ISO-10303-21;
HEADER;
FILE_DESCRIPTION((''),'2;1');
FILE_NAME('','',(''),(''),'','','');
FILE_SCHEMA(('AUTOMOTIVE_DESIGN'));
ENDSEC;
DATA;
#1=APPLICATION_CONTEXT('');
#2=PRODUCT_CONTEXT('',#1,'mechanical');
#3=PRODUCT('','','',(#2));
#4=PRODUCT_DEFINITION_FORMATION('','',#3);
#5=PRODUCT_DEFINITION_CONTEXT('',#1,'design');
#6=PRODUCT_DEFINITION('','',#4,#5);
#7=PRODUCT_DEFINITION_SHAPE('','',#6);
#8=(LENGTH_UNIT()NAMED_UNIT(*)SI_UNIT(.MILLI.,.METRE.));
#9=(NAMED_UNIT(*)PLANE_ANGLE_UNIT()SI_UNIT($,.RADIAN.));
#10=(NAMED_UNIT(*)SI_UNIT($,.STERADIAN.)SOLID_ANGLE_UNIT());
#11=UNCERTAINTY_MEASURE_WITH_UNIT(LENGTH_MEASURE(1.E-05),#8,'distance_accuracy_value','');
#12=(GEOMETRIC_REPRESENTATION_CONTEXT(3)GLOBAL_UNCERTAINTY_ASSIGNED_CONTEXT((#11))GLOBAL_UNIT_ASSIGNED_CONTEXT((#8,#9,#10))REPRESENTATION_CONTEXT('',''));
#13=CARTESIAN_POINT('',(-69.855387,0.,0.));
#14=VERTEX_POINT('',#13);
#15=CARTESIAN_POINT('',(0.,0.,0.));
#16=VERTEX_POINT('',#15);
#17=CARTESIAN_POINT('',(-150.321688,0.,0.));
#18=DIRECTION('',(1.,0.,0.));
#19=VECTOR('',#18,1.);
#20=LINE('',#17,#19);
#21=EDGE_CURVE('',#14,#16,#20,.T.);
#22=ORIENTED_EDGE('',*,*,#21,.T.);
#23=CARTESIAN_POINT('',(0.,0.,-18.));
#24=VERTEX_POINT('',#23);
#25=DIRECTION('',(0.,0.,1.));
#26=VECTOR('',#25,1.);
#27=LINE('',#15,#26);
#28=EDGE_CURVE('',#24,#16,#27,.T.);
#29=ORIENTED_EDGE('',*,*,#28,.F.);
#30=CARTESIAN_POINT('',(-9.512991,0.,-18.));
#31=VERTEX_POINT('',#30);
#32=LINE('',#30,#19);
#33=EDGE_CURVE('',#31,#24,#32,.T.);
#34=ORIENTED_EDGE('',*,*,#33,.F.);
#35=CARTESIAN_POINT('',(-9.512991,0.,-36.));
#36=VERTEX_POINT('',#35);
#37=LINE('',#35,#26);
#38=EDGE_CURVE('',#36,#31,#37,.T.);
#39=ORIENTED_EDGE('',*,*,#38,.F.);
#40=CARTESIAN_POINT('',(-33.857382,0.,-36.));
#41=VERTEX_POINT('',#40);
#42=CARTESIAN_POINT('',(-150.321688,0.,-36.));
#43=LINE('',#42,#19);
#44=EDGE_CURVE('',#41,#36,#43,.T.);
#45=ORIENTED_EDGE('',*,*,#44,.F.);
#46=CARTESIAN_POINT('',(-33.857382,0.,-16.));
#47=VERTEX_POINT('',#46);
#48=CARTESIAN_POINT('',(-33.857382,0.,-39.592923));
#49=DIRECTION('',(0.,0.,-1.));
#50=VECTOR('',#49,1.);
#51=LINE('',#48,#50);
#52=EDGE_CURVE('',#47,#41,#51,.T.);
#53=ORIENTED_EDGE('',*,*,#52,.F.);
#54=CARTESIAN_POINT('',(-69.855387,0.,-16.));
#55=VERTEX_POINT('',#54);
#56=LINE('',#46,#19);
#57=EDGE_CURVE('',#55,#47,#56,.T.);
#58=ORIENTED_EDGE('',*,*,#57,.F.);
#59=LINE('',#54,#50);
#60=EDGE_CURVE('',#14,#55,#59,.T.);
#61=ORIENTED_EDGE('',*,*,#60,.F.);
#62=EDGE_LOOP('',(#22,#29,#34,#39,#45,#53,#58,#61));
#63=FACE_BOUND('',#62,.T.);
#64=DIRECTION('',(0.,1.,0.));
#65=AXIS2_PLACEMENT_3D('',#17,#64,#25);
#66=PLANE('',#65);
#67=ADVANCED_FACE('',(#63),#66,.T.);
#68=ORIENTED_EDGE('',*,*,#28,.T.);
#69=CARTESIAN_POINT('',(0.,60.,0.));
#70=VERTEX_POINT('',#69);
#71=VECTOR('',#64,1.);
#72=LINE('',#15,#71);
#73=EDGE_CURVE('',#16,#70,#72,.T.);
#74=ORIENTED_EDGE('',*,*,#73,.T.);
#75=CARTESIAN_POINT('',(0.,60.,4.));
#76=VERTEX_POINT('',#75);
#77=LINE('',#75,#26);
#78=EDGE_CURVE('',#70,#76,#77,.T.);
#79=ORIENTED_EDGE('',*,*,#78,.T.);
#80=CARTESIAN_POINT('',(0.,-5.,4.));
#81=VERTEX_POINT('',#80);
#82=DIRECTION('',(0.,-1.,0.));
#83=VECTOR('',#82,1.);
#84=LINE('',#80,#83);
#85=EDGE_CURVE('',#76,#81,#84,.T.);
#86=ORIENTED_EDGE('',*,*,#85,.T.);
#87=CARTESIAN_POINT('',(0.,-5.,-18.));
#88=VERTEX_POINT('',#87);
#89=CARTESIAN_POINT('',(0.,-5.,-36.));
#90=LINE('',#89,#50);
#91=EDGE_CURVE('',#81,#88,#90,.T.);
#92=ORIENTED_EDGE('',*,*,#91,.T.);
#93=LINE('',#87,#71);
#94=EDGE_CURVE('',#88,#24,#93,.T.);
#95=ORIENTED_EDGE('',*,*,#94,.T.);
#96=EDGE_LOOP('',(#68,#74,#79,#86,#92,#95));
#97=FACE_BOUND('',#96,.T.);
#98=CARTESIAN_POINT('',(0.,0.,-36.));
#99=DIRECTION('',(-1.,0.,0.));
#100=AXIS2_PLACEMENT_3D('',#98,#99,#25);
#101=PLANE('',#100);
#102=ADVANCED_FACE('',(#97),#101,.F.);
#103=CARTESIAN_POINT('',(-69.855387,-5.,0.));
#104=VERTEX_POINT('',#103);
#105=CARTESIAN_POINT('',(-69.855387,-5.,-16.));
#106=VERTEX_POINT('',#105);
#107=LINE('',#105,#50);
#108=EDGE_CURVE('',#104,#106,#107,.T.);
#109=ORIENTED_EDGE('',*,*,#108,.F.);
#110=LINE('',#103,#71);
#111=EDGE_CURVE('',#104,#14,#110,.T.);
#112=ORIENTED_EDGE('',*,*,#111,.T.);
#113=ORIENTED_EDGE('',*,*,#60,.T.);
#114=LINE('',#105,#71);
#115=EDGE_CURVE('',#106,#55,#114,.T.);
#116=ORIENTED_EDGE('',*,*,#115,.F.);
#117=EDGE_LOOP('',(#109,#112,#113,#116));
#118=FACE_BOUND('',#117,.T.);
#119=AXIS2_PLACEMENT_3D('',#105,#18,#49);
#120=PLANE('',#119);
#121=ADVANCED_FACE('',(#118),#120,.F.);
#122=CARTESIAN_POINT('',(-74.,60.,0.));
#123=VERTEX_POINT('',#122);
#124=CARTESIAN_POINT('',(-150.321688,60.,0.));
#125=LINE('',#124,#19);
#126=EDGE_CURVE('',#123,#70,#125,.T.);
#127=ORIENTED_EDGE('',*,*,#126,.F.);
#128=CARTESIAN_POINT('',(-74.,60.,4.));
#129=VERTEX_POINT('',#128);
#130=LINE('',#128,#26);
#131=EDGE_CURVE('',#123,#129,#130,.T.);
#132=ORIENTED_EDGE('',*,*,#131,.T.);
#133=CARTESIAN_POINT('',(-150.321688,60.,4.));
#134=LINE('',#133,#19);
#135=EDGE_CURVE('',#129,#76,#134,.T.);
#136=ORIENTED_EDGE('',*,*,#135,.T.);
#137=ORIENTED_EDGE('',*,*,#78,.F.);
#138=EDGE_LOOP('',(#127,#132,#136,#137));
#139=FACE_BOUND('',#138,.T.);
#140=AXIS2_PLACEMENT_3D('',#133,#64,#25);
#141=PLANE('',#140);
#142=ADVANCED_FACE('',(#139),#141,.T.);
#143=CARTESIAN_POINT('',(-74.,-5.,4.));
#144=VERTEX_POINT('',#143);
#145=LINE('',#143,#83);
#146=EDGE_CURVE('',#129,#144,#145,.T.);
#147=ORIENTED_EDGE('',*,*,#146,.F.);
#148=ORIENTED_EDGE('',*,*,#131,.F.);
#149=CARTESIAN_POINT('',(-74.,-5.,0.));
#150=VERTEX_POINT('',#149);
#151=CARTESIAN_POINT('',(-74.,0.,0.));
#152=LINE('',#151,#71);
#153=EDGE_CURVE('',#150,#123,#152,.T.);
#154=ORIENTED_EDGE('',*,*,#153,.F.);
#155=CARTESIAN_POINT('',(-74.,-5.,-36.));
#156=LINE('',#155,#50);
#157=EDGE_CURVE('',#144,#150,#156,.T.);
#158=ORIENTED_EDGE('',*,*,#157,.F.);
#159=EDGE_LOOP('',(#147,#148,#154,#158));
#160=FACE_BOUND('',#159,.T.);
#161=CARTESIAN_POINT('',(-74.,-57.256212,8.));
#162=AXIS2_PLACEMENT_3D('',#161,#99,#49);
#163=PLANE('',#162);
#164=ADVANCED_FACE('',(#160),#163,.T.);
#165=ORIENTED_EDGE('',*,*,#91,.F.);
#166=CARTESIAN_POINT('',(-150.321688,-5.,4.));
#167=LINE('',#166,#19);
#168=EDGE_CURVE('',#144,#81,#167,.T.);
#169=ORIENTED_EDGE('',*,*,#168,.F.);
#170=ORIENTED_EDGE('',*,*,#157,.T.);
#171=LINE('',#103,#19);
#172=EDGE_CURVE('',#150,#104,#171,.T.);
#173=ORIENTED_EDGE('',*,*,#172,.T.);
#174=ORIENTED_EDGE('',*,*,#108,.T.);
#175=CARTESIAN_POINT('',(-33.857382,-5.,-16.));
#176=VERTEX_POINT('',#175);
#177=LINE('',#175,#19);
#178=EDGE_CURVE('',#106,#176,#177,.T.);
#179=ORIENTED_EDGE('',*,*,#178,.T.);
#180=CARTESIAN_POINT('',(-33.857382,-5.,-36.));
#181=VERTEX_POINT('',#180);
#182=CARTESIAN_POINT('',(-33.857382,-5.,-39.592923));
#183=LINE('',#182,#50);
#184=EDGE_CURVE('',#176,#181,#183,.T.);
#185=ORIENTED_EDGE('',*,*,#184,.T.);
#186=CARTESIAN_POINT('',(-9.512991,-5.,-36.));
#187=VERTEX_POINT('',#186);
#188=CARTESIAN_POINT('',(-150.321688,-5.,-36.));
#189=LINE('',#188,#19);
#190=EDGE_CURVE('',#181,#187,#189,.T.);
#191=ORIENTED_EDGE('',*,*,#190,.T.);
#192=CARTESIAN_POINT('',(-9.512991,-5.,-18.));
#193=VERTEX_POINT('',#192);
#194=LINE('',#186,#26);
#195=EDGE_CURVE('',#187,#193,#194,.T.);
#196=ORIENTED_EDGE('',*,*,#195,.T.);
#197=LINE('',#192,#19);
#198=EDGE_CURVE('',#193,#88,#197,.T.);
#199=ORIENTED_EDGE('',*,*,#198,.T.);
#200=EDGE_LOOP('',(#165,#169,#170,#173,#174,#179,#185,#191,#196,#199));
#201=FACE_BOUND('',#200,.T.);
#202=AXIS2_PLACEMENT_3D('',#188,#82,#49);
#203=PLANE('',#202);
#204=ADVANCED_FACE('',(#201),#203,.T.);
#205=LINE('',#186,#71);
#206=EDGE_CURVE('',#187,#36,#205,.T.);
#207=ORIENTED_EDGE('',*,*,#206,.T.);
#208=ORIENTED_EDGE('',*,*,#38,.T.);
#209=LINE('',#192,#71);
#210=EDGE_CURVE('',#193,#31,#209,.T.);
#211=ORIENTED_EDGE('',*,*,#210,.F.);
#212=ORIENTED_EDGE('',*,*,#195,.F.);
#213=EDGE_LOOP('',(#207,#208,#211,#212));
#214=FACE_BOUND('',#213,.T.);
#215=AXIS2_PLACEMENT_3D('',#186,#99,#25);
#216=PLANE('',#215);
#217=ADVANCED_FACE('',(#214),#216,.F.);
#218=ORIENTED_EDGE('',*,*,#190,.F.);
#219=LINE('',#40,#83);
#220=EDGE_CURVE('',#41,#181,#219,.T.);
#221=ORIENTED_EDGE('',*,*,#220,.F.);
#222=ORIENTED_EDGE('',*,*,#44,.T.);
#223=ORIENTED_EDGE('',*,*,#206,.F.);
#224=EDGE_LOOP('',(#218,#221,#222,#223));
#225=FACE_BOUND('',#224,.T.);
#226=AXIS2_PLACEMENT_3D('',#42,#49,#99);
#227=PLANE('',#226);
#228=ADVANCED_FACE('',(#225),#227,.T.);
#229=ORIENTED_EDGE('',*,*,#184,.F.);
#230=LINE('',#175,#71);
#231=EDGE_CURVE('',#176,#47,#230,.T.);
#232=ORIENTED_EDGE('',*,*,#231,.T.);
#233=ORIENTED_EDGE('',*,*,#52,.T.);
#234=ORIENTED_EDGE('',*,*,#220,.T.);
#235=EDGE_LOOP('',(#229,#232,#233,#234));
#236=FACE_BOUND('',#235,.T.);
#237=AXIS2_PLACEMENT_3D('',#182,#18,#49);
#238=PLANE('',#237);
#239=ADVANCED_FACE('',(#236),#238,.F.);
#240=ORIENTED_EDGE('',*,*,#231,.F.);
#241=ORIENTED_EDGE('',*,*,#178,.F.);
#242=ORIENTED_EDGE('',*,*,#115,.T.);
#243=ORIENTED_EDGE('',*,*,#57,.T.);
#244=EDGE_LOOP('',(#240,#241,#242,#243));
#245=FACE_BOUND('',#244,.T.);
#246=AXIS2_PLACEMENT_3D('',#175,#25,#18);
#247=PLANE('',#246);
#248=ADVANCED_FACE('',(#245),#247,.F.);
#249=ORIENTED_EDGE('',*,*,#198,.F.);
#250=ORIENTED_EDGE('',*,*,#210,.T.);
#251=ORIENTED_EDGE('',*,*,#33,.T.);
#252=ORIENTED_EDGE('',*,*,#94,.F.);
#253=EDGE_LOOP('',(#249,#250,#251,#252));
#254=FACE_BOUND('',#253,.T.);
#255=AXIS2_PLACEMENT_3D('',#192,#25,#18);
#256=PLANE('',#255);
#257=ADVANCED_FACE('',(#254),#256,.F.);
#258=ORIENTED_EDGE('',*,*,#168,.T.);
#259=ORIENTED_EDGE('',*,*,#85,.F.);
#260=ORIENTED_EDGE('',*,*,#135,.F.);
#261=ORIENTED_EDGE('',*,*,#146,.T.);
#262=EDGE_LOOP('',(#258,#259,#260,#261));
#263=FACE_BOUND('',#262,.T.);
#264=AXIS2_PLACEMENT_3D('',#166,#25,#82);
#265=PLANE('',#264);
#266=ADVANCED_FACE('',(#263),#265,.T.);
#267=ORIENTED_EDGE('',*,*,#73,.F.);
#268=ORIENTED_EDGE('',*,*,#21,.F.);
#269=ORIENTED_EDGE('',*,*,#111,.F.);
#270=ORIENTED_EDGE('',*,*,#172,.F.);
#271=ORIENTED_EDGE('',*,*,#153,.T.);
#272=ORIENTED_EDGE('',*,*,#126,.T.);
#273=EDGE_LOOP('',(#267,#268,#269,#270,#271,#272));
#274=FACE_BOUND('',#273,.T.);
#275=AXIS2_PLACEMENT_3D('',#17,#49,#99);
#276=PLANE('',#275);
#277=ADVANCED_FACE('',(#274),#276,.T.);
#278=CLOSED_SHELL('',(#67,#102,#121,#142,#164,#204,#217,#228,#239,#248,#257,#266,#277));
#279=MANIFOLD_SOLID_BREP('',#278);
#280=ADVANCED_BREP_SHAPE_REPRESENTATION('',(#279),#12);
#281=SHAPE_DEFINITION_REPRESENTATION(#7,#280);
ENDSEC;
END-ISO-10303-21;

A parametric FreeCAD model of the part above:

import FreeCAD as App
import Part
import Sketcher

V = App.Vector
Q = App.Units.Quantity

doc = App.newDocument("Part")
params = doc.addObject("Spreadsheet::Sheet", "Params")
for row, (alias, value) in enumerate([
    ("sketch1_width", "60 mm"),
    ("sketch1_width2", "65 mm"),
    ("sketch1_height", "4 mm"),
    ("sketch1_height2", "40 mm"),
    ("pad1_length", "74 mm"),
    ("sketch2_width", "42 mm"),
    ("sketch2_height", "16 mm"),
    ("sketch2_height2", "18 mm"),
], start=1):
    params.set(f"A{row}", alias)
    params.set(f"B{row}", "=" + value)
    params.setAlias(f"B{row}", alias)

body = doc.addObject("PartDesign::Body", "Body")

sketch1 = body.newObject("Sketcher::SketchObject", "Sketch")
sketch1.AttachmentSupport = (doc.getObject("YZ_Plane"), [""])
sketch1.MapMode = "FlatFace"
sketch1.addGeometry([
    Part.LineSegment(V(0, 0, 0), V(60, 0, 0)),
    Part.LineSegment(V(60, 0, 0), V(60, 4, 0)),
    Part.LineSegment(V(60, 4, 0), V(-5, 4, 0)),
    Part.LineSegment(V(-5, 4, 0), V(-5, -36, 0)),
    Part.LineSegment(V(-5, -36, 0), V(0, -36, 0)),
    Part.LineSegment(V(0, -36, 0), V(0, 0, 0)),
], False)
sketch1.addConstraint([
    Sketcher.Constraint("Coincident", 0, 2, 1, 1),
    Sketcher.Constraint("Coincident", 1, 2, 2, 1),
    Sketcher.Constraint("Coincident", 2, 2, 3, 1),
    Sketcher.Constraint("Coincident", 3, 2, 4, 1),
    Sketcher.Constraint("Coincident", 4, 2, 5, 1),
    Sketcher.Constraint("Coincident", 5, 2, 0, 1),
    Sketcher.Constraint("Horizontal", 0),
    Sketcher.Constraint("Vertical", 1),
    Sketcher.Constraint("Horizontal", 2),
    Sketcher.Constraint("Vertical", 3),
    Sketcher.Constraint("Horizontal", 4),
    Sketcher.Constraint("Vertical", 5),
    Sketcher.Constraint("Coincident", 5, 2, -1, 1),
    Sketcher.Constraint("DistanceX", 0, 1, 0, 2, Q("60 mm")),
    Sketcher.Constraint("DistanceX", 2, 2, 2, 1, Q("65 mm")),
    Sketcher.Constraint("DistanceY", 1, 1, 1, 2, Q("4 mm")),
    Sketcher.Constraint("DistanceY", 3, 2, 3, 1, Q("40 mm")),
])
sketch1.setExpression("Constraints[13]", "Params.sketch1_width")
sketch1.setExpression("Constraints[14]", "Params.sketch1_width2")
sketch1.setExpression("Constraints[15]", "Params.sketch1_height")
sketch1.setExpression("Constraints[16]", "Params.sketch1_height2")
pad1 = body.newObject("PartDesign::Pad", "Pad")
pad1.Profile = sketch1
pad1.setExpression("Length", "Params.pad1_length")
pad1.Reversed = True

sketch2 = body.newObject("Sketcher::SketchObject", "Sketch001")
sketch2.AttachmentSupport = (doc.getObject("XZ_Plane"), [""])
sketch2.MapMode = "FlatFace"
sketch2.addGeometry([
    Part.LineSegment(V(-69.855387, -16, 0), V(-33.857382, -16, 0)),
    Part.LineSegment(V(-33.857382, -16, 0), V(-33.857382, -39.592923, 0)),
    Part.LineSegment(V(-33.857382, -39.592923, 0), V(-75.857382, -39.592923, 0)),
    Part.LineSegment(V(-75.857382, -39.592923, 0), V(-75.857382, 0, 0)),
    Part.LineSegment(V(-75.857382, 0, 0), V(-69.855387, 0, 0)),
    Part.LineSegment(V(-69.855387, 0, 0), V(-69.855387, -16, 0)),
    Part.LineSegment(V(-9.512991, -36, 0), V(-9.512991, -18, 0)),
    Part.LineSegment(V(-9.512991, -18, 0), V(0, -18, 0)),
    Part.LineSegment(V(0, -18, 0), V(0, -36, 0)),
    Part.LineSegment(V(0, -36, 0), V(-9.512991, -36, 0)),
], False)
sketch2.addConstraint([
    Sketcher.Constraint("Coincident", 0, 2, 1, 1),
    Sketcher.Constraint("Coincident", 1, 2, 2, 1),
    Sketcher.Constraint("Coincident", 2, 2, 3, 1),
    Sketcher.Constraint("Coincident", 3, 2, 4, 1),
    Sketcher.Constraint("Coincident", 4, 2, 5, 1),
    Sketcher.Constraint("Coincident", 5, 2, 0, 1),
    Sketcher.Constraint("Coincident", 6, 2, 7, 1),
    Sketcher.Constraint("Coincident", 7, 2, 8, 1),
    Sketcher.Constraint("Coincident", 8, 2, 9, 1),
    Sketcher.Constraint("Coincident", 9, 2, 6, 1),
    Sketcher.Constraint("Horizontal", 0),
    Sketcher.Constraint("Vertical", 1),
    Sketcher.Constraint("Horizontal", 2),
    Sketcher.Constraint("Vertical", 3),
    Sketcher.Constraint("Horizontal", 4),
    Sketcher.Constraint("Vertical", 5),
    Sketcher.Constraint("Vertical", 6),
    Sketcher.Constraint("Horizontal", 7),
    Sketcher.Constraint("Vertical", 8),
    Sketcher.Constraint("Horizontal", 9),
    Sketcher.Constraint("PointOnObject", 3, 2, -1),
    Sketcher.Constraint("PointOnObject", 7, 2, -2),
    Sketcher.Constraint("DistanceX", 2, 2, 2, 1, Q("42 mm")),
    Sketcher.Constraint("DistanceY", 5, 2, 5, 1, Q("16 mm")),
    Sketcher.Constraint("DistanceY", 6, 1, 6, 2, Q("18 mm")),
    Sketcher.Constraint("DistanceY", 6, 2, -1, 1, Q("18 mm")),
    Sketcher.Constraint("DistanceX", 7, 1, 7, 2, Q("9.512991 mm")),
    Sketcher.Constraint("DistanceX", 0, 1, 0, 2, Q("35.998005 mm")),
    Sketcher.Constraint("DistanceY", 1, 2, 1, 1, Q("23.592923 mm")),
    Sketcher.Constraint("DistanceX", 0, 2, -1, 1, Q("33.857382 mm")),
])
sketch2.setExpression("Constraints[22]", "Params.sketch2_width")
sketch2.setExpression("Constraints[23]", "Params.sketch2_height")
sketch2.setExpression("Constraints[24]", "Params.sketch2_height2")
pocket1 = body.newObject("PartDesign::Pocket", "Pocket")
pocket1.Profile = sketch2
pocket1.Type = "ThroughAll"
pocket1.Reversed = True

doc.recompute()
